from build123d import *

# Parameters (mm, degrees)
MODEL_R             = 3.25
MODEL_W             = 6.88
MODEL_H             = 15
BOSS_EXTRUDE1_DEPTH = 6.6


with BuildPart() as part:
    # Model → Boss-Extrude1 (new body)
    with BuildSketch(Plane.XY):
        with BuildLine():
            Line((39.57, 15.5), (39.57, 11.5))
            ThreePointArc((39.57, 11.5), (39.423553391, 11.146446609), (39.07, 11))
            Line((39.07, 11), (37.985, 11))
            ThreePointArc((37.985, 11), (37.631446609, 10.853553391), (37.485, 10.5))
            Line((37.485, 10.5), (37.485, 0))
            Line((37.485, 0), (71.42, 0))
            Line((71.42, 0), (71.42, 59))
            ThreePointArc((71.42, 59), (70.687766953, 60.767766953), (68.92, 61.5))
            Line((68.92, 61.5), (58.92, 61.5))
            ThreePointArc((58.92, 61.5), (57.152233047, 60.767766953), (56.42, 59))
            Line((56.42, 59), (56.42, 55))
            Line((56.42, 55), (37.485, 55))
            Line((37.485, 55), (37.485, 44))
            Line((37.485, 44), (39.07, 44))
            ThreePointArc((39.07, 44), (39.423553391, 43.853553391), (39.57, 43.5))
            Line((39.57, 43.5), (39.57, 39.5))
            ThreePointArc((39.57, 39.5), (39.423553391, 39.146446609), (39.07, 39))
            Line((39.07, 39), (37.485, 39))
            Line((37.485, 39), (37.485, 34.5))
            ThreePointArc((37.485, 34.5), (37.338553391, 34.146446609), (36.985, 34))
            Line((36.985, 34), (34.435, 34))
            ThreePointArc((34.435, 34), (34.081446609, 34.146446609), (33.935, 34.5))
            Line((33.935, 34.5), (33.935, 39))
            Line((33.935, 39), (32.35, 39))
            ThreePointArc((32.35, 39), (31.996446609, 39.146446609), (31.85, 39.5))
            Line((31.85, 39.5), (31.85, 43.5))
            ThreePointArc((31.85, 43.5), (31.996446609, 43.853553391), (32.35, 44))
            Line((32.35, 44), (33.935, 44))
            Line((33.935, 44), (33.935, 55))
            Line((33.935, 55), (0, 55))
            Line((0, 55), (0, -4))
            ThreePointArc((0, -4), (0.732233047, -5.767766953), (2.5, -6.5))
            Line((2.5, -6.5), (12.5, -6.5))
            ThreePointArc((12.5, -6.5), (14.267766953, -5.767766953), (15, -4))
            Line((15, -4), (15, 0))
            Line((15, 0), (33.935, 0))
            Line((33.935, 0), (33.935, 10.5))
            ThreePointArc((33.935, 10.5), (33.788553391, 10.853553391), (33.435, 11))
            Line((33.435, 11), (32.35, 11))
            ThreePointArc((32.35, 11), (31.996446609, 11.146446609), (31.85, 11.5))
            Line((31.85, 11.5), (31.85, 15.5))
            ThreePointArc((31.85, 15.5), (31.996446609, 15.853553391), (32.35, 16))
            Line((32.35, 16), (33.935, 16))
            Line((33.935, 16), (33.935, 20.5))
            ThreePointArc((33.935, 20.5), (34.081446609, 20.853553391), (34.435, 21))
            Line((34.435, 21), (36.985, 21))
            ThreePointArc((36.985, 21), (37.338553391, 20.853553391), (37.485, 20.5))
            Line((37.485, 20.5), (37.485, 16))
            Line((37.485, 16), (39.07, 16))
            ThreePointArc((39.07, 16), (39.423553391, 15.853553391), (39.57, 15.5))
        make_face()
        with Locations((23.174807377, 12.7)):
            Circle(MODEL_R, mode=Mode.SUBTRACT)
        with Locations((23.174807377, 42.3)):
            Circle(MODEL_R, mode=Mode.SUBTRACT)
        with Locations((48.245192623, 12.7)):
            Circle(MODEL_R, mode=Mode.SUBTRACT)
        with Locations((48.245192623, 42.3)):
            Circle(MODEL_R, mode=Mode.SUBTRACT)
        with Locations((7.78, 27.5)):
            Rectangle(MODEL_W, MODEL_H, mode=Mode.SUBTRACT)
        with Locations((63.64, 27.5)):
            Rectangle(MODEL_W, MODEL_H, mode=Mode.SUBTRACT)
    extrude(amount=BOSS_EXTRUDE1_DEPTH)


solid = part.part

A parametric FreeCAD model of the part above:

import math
import FreeCAD as App
import Part
import Sketcher
Q = App.Units.Quantity


def add_polygon(sketch, points):
    """Adds a closed chain of lines whose ends are joined by coincident constraints."""
    first, n = sketch.GeometryCount, len(points)
    for a, b in zip(points, points[1:] + points[:1]):
        sketch.addGeometry(Part.LineSegment(App.Vector(*a, 0), App.Vector(*b, 0)), False)
    for i in range(n):
        sketch.addConstraint(Sketcher.Constraint("Coincident", first + i, 2, first + (i + 1) % n, 1))

doc = App.newDocument("Part")
body = doc.addObject("PartDesign::Body", "Body")

# Sketch on XY plane
sketch1 = body.newObject("Sketcher::SketchObject", "Sketch")
sketch1.AttachmentSupport = (doc.getObject("XY_Plane"), [""])
sketch1.MapMode = "FlatFace"
sketch1.addGeometry(Part.LineSegment(App.Vector(39.57, 15.5, 0), App.Vector(39.57, 11.5, 0)), False)  # 0
sketch1.addGeometry(Part.ArcOfCircle(Part.Circle(App.Vector(39.07, 11.5, 0), App.Vector(0, 0, 1), 0.5), math.radians(-90), math.radians(0)), False)  # 1
sketch1.addGeometry(Part.LineSegment(App.Vector(39.07, 11, 0), App.Vector(37.985, 11, 0)), False)  # 2
sketch1.addGeometry(Part.ArcOfCircle(Part.Circle(App.Vector(37.985, 10.5, 0), App.Vector(0, 0, 1), 0.5), math.radians(90), math.radians(180)), False)  # 3
sketch1.addGeometry(Part.LineSegment(App.Vector(37.485, 10.5, 0), App.Vector(37.485, 0, 0)), False)  # 4
sketch1.addGeometry(Part.LineSegment(App.Vector(37.485, 0, 0), App.Vector(71.42, 0, 0)), False)  # 5
sketch1.addGeometry(Part.LineSegment(App.Vector(71.42, 0, 0), App.Vector(71.42, 59, 0)), False)  # 6
sketch1.addGeometry(Part.ArcOfCircle(Part.Circle(App.Vector(68.92, 59, 0), App.Vector(0, 0, 1), 2.5), math.radians(0), math.radians(90)), False)  # 7
sketch1.addGeometry(Part.LineSegment(App.Vector(68.92, 61.5, 0), App.Vector(58.92, 61.5, 0)), False)  # 8
sketch1.addGeometry(Part.ArcOfCircle(Part.Circle(App.Vector(58.92, 59, 0), App.Vector(0, 0, 1), 2.5), math.radians(90), math.radians(180)), False)  # 9
sketch1.addGeometry(Part.LineSegment(App.Vector(56.42, 59, 0), App.Vector(56.42, 55, 0)), False)  # 10
sketch1.addGeometry(Part.LineSegment(App.Vector(56.42, 55, 0), App.Vector(37.485, 55, 0)), False)  # 11
sketch1.addGeometry(Part.LineSegment(App.Vector(37.485, 55, 0), App.Vector(37.485, 44, 0)), False)  # 12
sketch1.addGeometry(Part.LineSegment(App.Vector(37.485, 44, 0), App.Vector(39.07, 44, 0)), False)  # 13
sketch1.addGeometry(Part.ArcOfCircle(Part.Circle(App.Vector(39.07, 43.5, 0), App.Vector(0, 0, 1), 0.5), math.radians(0), math.radians(90)), False)  # 14
sketch1.addGeometry(Part.LineSegment(App.Vector(39.57, 43.5, 0), App.Vector(39.57, 39.5, 0)), False)  # 15
sketch1.addGeometry(Part.ArcOfCircle(Part.Circle(App.Vector(39.07, 39.5, 0), App.Vector(0, 0, 1), 0.5), math.radians(-90), math.radians(0)), False)  # 16
sketch1.addGeometry(Part.LineSegment(App.Vector(39.07, 39, 0), App.Vector(37.485, 39, 0)), False)  # 17
sketch1.addGeometry(Part.LineSegment(App.Vector(37.485, 39, 0), App.Vector(37.485, 34.5, 0)), False)  # 18
sketch1.addGeometry(Part.ArcOfCircle(Part.Circle(App.Vector(36.985, 34.5, 0), App.Vector(0, 0, 1), 0.5), math.radians(-90), math.radians(0)), False)  # 19
sketch1.addGeometry(Part.LineSegment(App.Vector(36.985, 34, 0), App.Vector(34.435, 34, 0)), False)  # 20
sketch1.addGeometry(Part.ArcOfCircle(Part.Circle(App.Vector(34.435, 34.5, 0), App.Vector(0, 0, 1), 0.5), math.radians(180), math.radians(270)), False)  # 21
sketch1.addGeometry(Part.LineSegment(App.Vector(33.935, 34.5, 0), App.Vector(33.935, 39, 0)), False)  # 22
sketch1.addGeometry(Part.LineSegment(App.Vector(33.935, 39, 0), App.Vector(32.35, 39, 0)), False)  # 23
sketch1.addGeometry(Part.ArcOfCircle(Part.Circle(App.Vector(32.35, 39.5, 0), App.Vector(0, 0, 1), 0.5), math.radians(180), math.radians(270)), False)  # 24
sketch1.addGeometry(Part.LineSegment(App.Vector(31.85, 39.5, 0), App.Vector(31.85, 43.5, 0)), False)  # 25
sketch1.addGeometry(Part.ArcOfCircle(Part.Circle(App.Vector(32.35, 43.5, 0), App.Vector(0, 0, 1), 0.5), math.radians(90), math.radians(180)), False)  # 26
sketch1.addGeometry(Part.LineSegment(App.Vector(32.35, 44, 0), App.Vector(33.935, 44, 0)), False)  # 27
sketch1.addGeometry(Part.LineSegment(App.Vector(33.935, 44, 0), App.Vector(33.935, 55, 0)), False)  # 28
sketch1.addGeometry(Part.LineSegment(App.Vector(33.935, 55, 0), App.Vector(0, 55, 0)), False)  # 29
sketch1.addGeometry(Part.LineSegment(App.Vector(0, 55, 0), App.Vector(0, -4, 0)), False)  # 30
sketch1.addGeometry(Part.ArcOfCircle(Part.Circle(App.Vector(2.5, -4, 0), App.Vector(0, 0, 1), 2.5), math.radians(180), math.radians(270)), False)  # 31
sketch1.addGeometry(Part.LineSegment(App.Vector(2.5, -6.5, 0), App.Vector(12.5, -6.5, 0)), False)  # 32
sketch1.addGeometry(Part.ArcOfCircle(Part.Circle(App.Vector(12.5, -4, 0), App.Vector(0, 0, 1), 2.5), math.radians(-90), math.radians(0)), False)  # 33
sketch1.addGeometry(Part.LineSegment(App.Vector(15, -4, 0), App.Vector(15, 0, 0)), False)  # 34
sketch1.addGeometry(Part.LineSegment(App.Vector(15, 0, 0), App.Vector(33.935, 0, 0)), False)  # 35
sketch1.addGeometry(Part.LineSegment(App.Vector(33.935, 0, 0), App.Vector(33.935, 10.5, 0)), False)  # 36
sketch1.addGeometry(Part.ArcOfCircle(Part.Circle(App.Vector(33.435, 10.5, 0), App.Vector(0, 0, 1), 0.5), math.radians(0), math.radians(90)), False)  # 37
sketch1.addGeometry(Part.LineSegment(App.Vector(33.435, 11, 0), App.Vector(32.35, 11, 0)), False)  # 38
sketch1.addGeometry(Part.ArcOfCircle(Part.Circle(App.Vector(32.35, 11.5, 0), App.Vector(0, 0, 1), 0.5), math.radians(180), math.radians(270)), False)  # 39
sketch1.addGeometry(Part.LineSegment(App.Vector(31.85, 11.5, 0), App.Vector(31.85, 15.5, 0)), False)  # 40
sketch1.addGeometry(Part.ArcOfCircle(Part.Circle(App.Vector(32.35, 15.5, 0), App.Vector(0, 0, 1), 0.5), math.radians(90), math.radians(180)), False)  # 41
sketch1.addGeometry(Part.LineSegment(App.Vector(32.35, 16, 0), App.Vector(33.935, 16, 0)), False)  # 42
sketch1.addGeometry(Part.LineSegment(App.Vector(33.935, 16, 0), App.Vector(33.935, 20.5, 0)), False)  # 43
sketch1.addGeometry(Part.ArcOfCircle(Part.Circle(App.Vector(34.435, 20.5, 0), App.Vector(0, 0, 1), 0.5), math.radians(90), math.radians(180)), False)  # 44
sketch1.addGeometry(Part.LineSegment(App.Vector(34.435, 21, 0), App.Vector(36.985, 21, 0)), False)  # 45
sketch1.addGeometry(Part.ArcOfCircle(Part.Circle(App.Vector(36.985, 20.5, 0), App.Vector(0, 0, 1), 0.5), math.radians(0), math.radians(90)), False)  # 46
sketch1.addGeometry(Part.LineSegment(App.Vector(37.485, 20.5, 0), App.Vector(37.485, 16, 0)), False)  # 47
sketch1.addGeometry(Part.LineSegment(App.Vector(37.485, 16, 0), App.Vector(39.07, 16, 0)), False)  # 48
sketch1.addGeometry(Part.ArcOfCircle(Part.Circle(App.Vector(39.07, 15.5, 0), App.Vector(0, 0, 1), 0.5), math.radians(0), math.radians(90)), False)  # 49
sketch1.addGeometry(Part.Circle(App.Vector(23.174807, 12.7, 0), App.Vector(0, 0, 1), 3.25), False)  # 50
sketch1.addGeometry(Part.Circle(App.Vector(48.245193, 12.7, 0), App.Vector(0, 0, 1), 3.25), False)  # 51
add_polygon(sketch1, [(11.22, 20), (4.34, 20), (4.34, 35), (11.22, 35)])  # lines 52-55
sketch1.addGeometry(Part.Circle(App.Vector(23.174807, 42.3, 0), App.Vector(0, 0, 1), 3.25), False)  # 56
add_polygon(sketch1, [(67.08, 20), (60.2, 20), (60.2, 35), (67.08, 35)])  # lines 57-60
sketch1.addGeometry(Part.Circle(App.Vector(48.245193, 42.3, 0), App.Vector(0, 0, 1), 3.25), False)  # 61
sketch1.addConstraint(Sketcher.Constraint("Tangent", 0, 2, 1, 2))
sketch1.addConstraint(Sketcher.Constraint("Tangent", 1, 1, 2, 1))
sketch1.addConstraint(Sketcher.Constraint("Tangent", 2, 2, 3, 1))
sketch1.addConstraint(Sketcher.Constraint("Tangent", 3, 2, 4, 1))
sketch1.addConstraint(Sketcher.Constraint("Coincident", 4, 2, 5, 1))
sketch1.addConstraint(Sketcher.Constraint("Coincident", 5, 2, 6, 1))
sketch1.addConstraint(Sketcher.Constraint("Tangent", 6, 2, 7, 1))
sketch1.addConstraint(Sketcher.Constraint("Tangent", 7, 2, 8, 1))
sketch1.addConstraint(Sketcher.Constraint("Tangent", 8, 2, 9, 1))
sketch1.addConstraint(Sketcher.Constraint("Tangent", 9, 2, 10, 1))
sketch1.addConstraint(Sketcher.Constraint("Coincident", 10, 2, 11, 1))
sketch1.addConstraint(Sketcher.Constraint("Coincident", 11, 2, 12, 1))
sketch1.addConstraint(Sketcher.Constraint("Coincident", 12, 2, 13, 1))
sketch1.addConstraint(Sketcher.Constraint("Tangent", 13, 2, 14, 2))
sketch1.addConstraint(Sketcher.Constraint("Tangent", 14, 1, 15, 1))
sketch1.addConstraint(Sketcher.Constraint("Tangent", 15, 2, 16, 2))
sketch1.addConstraint(Sketcher.Constraint("Tangent", 16, 1, 17, 1))
sketch1.addConstraint(Sketcher.Constraint("Coincident", 17, 2, 18, 1))
sketch1.addConstraint(Sketcher.Constraint("Tangent", 18, 2, 19, 2))
sketch1.addConstraint(Sketcher.Constraint("Tangent", 19, 1, 20, 1))
sketch1.addConstraint(Sketcher.Constraint("Tangent", 20, 2, 21, 2))
sketch1.addConstraint(Sketcher.Constraint("Tangent", 21, 1, 22, 1))
sketch1.addConstraint(Sketcher.Constraint("Coincident", 22, 2, 23, 1))
sketch1.addConstraint(Sketcher.Constraint("Tangent", 23, 2, 24, 2))
sketch1.addConstraint(Sketcher.Constraint("Tangent", 24, 1, 25, 1))
sketch1.addConstraint(Sketcher.Constraint("Tangent", 25, 2, 26, 2))
sketch1.addConstraint(Sketcher.Constraint("Tangent", 26, 1, 27, 1))
sketch1.addConstraint(Sketcher.Constraint("Coincident", 27, 2, 28, 1))
sketch1.addConstraint(Sketcher.Constraint("Coincident", 28, 2, 29, 1))
sketch1.addConstraint(Sketcher.Constraint("Coincident", 29, 2, 30, 1))
sketch1.addConstraint(Sketcher.Constraint("Tangent", 30, 2, 31, 1))
sketch1.addConstraint(Sketcher.Constraint("Tangent", 31, 2, 32, 1))
sketch1.addConstraint(Sketcher.Constraint("Tangent", 32, 2, 33, 1))
sketch1.addConstraint(Sketcher.Constraint("Tangent", 33, 2, 34, 1))
sketch1.addConstraint(Sketcher.Constraint("Coincident", 34, 2, 35, 1))
sketch1.addConstraint(Sketcher.Constraint("Coincident", 35, 2, 36, 1))
sketch1.addConstraint(Sketcher.Constraint("Tangent", 36, 2, 37, 1))
sketch1.addConstraint(Sketcher.Constraint("Tangent", 37, 2, 38, 1))
sketch1.addConstraint(Sketcher.Constraint("Tangent", 38, 2, 39, 2))
sketch1.addConstraint(Sketcher.Constraint("Tangent", 39, 1, 40, 1))
sketch1.addConstraint(Sketcher.Constraint("Tangent", 40, 2, 41, 2))
sketch1.addConstraint(Sketcher.Constraint("Tangent", 41, 1, 42, 1))
sketch1.addConstraint(Sketcher.Constraint("Coincident", 42, 2, 43, 1))
sketch1.addConstraint(Sketcher.Constraint("Tangent", 43, 2, 44, 2))
sketch1.addConstraint(Sketcher.Constraint("Tangent", 44, 1, 45, 1))
sketch1.addConstraint(Sketcher.Constraint("Tangent", 45, 2, 46, 2))
sketch1.addConstraint(Sketcher.Constraint("Tangent", 46, 1, 47, 1))
sketch1.addConstraint(Sketcher.Constraint("Coincident", 47, 2, 48, 1))
sketch1.addConstraint(Sketcher.Constraint("Tangent", 48, 2, 49, 2))
sketch1.addConstraint(Sketcher.Constraint("Tangent", 49, 1, 0, 1))
sketch1.addConstraint(Sketcher.Constraint("Vertical", 0))
sketch1.addConstraint(Sketcher.Constraint("Horizontal", 2))
sketch1.addConstraint(Sketcher.Constraint("Vertical", 4))
sketch1.addConstraint(Sketcher.Constraint("Horizontal", 5))
sketch1.addConstraint(Sketcher.Constraint("Vertical", 6))
sketch1.addConstraint(Sketcher.Constraint("Horizontal", 8))
sketch1.addConstraint(Sketcher.Constraint("Vertical", 10))
sketch1.addConstraint(Sketcher.Constraint("Horizontal", 11))
sketch1.addConstraint(Sketcher.Constraint("Vertical", 12))
sketch1.addConstraint(Sketcher.Constraint("Horizontal", 13))
sketch1.addConstraint(Sketcher.Constraint("Vertical", 15))
sketch1.addConstraint(Sketcher.Constraint("Horizontal", 17))
sketch1.addConstraint(Sketcher.Constraint("Vertical", 18))
sketch1.addConstraint(Sketcher.Constraint("Horizontal", 20))
sketch1.addConstraint(Sketcher.Constraint("Vertical", 22))
sketch1.addConstraint(Sketcher.Constraint("Horizontal", 23))
sketch1.addConstraint(Sketcher.Constraint("Vertical", 25))
sketch1.addConstraint(Sketcher.Constraint("Horizontal", 27))
sketch1.addConstraint(Sketcher.Constraint("Vertical", 28))
sketch1.addConstraint(Sketcher.Constraint("Horizontal", 29))
sketch1.addConstraint(Sketcher.Constraint("Vertical", 30))
sketch1.addConstraint(Sketcher.Constraint("Horizontal", 32))
sketch1.addConstraint(Sketcher.Constraint("Vertical", 34))
sketch1.addConstraint(Sketcher.Constraint("Horizontal", 35))
sketch1.addConstraint(Sketcher.Constraint("Vertical", 36))
sketch1.addConstraint(Sketcher.Constraint("Horizontal", 38))
sketch1.addConstraint(Sketcher.Constraint("Vertical", 40))
sketch1.addConstraint(Sketcher.Constraint("Horizontal", 42))
sketch1.addConstraint(Sketcher.Constraint("Vertical", 43))
sketch1.addConstraint(Sketcher.Constraint("Horizontal", 45))
sketch1.addConstraint(Sketcher.Constraint("Vertical", 47))
sketch1.addConstraint(Sketcher.Constraint("Horizontal", 48))
sketch1.addConstraint(Sketcher.Constraint("Horizontal", 52))
sketch1.addConstraint(Sketcher.Constraint("Vertical", 53))
sketch1.addConstraint(Sketcher.Constraint("Horizontal", 54))
sketch1.addConstraint(Sketcher.Constraint("Vertical", 55))
sketch1.addConstraint(Sketcher.Constraint("Horizontal", 57))
sketch1.addConstraint(Sketcher.Constraint("Vertical", 58))
sketch1.addConstraint(Sketcher.Constraint("Horizontal", 59))
sketch1.addConstraint(Sketcher.Constraint("Vertical", 60))
sketch1.addConstraint(Sketcher.Constraint("Equal", 1, 3))
sketch1.addConstraint(Sketcher.Constraint("Equal", 7, 9))
sketch1.addConstraint(Sketcher.Constraint("Equal", 3, 14))
sketch1.addConstraint(Sketcher.Constraint("Equal", 14, 16))
sketch1.addConstraint(Sketcher.Constraint("Equal", 16, 19))
sketch1.addConstraint(Sketcher.Constraint("Equal", 19, 21))
sketch1.addConstraint(Sketcher.Constraint("Equal", 21, 24))
sketch1.addConstraint(Sketcher.Constraint("Equal", 24, 26))
sketch1.addConstraint(Sketcher.Constraint("Equal", 9, 31))
sketch1.addConstraint(Sketcher.Constraint("Equal", 31, 33))
sketch1.addConstraint(Sketcher.Constraint("Equal", 26, 37))
sketch1.addConstraint(Sketcher.Constraint("Equal", 37, 39))
sketch1.addConstraint(Sketcher.Constraint("Equal", 39, 41))
sketch1.addConstraint(Sketcher.Constraint("Equal", 41, 44))
sketch1.addConstraint(Sketcher.Constraint("Equal", 44, 46))
sketch1.addConstraint(Sketcher.Constraint("Equal", 46, 49))
sketch1.addConstraint(Sketcher.Constraint("Equal", 50, 51))
sketch1.addConstraint(Sketcher.Constraint("Equal", 51, 56))
sketch1.addConstraint(Sketcher.Constraint("Equal", 56, 61))
sketch1.addConstraint(Sketcher.Constraint("PointOnObject", 4, 2, -1))
sketch1.addConstraint(Sketcher.Constraint("PointOnObject", 29, 2, -2))
sketch1.addConstraint(Sketcher.Constraint("PointOnObject", 34, 2, -1))
sketch1.addConstraint(Sketcher.Constraint("Horizontal", 16, 3, 24, 3))
sketch1.addConstraint(Sketcher.Constraint("Horizontal", 14, 3, 26, 3))
sketch1.addConstraint(Sketcher.Constraint("Horizontal", 3, 3, 37, 3))
sketch1.addConstraint(Sketcher.Constraint("Horizontal", 41, 3, 49, 3))
sketch1.addConstraint(Sketcher.Constraint("Horizontal", 50, 3, 51, 3))
sketch1.addConstraint(Sketcher.Constraint("Horizontal", 56, 3, 61, 3))
sketch1.addConstraint(Sketcher.Constraint("Horizontal", 11, 2, 28, 2))
sketch1.addConstraint(Sketcher.Constraint("Horizontal", 55, 2, 57, 2))
sketch1.addConstraint(Sketcher.Constraint("Horizontal", 54, 2, 58, 2))
sketch1.addConstraint(Sketcher.Constraint("Vertical", 1, 3, 14, 3))
sketch1.addConstraint(Sketcher.Constraint("Vertical", 26, 3, 39, 3))
sketch1.addConstraint(Sketcher.Constraint("Vertical", 21, 3, 44, 3))
sketch1.addConstraint(Sketcher.Constraint("Vertical", 19, 3, 46, 3))
sketch1.addConstraint(Sketcher.Constraint("Vertical", 50, 3, 56, 3))
sketch1.addConstraint(Sketcher.Constraint("Vertical", 51, 3, 61, 3))
sketch1.addConstraint(Sketcher.Constraint("Vertical", 4, 2, 11, 2))
sketch1.addConstraint(Sketcher.Constraint("Vertical", 12, 2, 17, 2))
sketch1.addConstraint(Sketcher.Constraint("Vertical", 22, 2, 27, 2))
sketch1.addConstraint(Sketcher.Constraint("Vertical", 28, 2, 35, 2))
sketch1.addConstraint(Sketcher.Constraint("Equal", 17, 23))
sketch1.addConstraint(Sketcher.Constraint("Equal", 5, 29))
sketch1.addConstraint(Sketcher.Constraint("Equal", 8, 32))
sketch1.addConstraint(Sketcher.Constraint("Equal", 54, 57))
sketch1.addConstraint(Sketcher.Constraint("Equal", 0, 10))
sketch1.addConstraint(Sketcher.Constraint("Equal", 10, 15))
sketch1.addConstraint(Sketcher.Constraint("Equal", 6, 30))
sketch1.addConstraint(Sketcher.Constraint("Equal", 22, 43))
sketch1.addConstraint(Sketcher.Constraint("Diameter", 50, Q("6.5 mm")))
sketch1.addConstraint(Sketcher.Constraint("Radius", 1, Q("0.5 mm")))
sketch1.addConstraint(Sketcher.Constraint("Radius", 7, Q("2.5 mm")))
sketch1.addConstraint(Sketcher.Constraint("DistanceX", 8, 2, 8, 1, Q("10 mm")))
sketch1.addConstraint(Sketcher.Constraint("DistanceY", 0, 2, 0, 1, Q("4 mm")))
sketch1.addConstraint(Sketcher.Constraint("DistanceY", 6, 1, 6, 2, Q("59 mm")))
sketch1.addConstraint(Sketcher.Constraint("DistanceY", 12, 2, 12, 1, Q("11 mm")))
sketch1.addConstraint(Sketcher.Constraint("DistanceY", 53, 1, 53, 2, Q("15 mm")))
sketch1.addConstraint(Sketcher.Constraint("DistanceY", 4, 2, 4, 1, Q("10.5 mm")))
sketch1.addConstraint(Sketcher.Constraint("DistanceY", 18, 2, 18, 1, Q("4.5 mm")))
sketch1.addConstraint(Sketcher.Constraint("DistanceY", -1, 1, 52, 2, Q("20 mm")))
sketch1.addConstraint(Sketcher.Constraint("DistanceX", 20, 2, 20, 1, Q("2.55 mm")))
sketch1.addConstraint(Sketcher.Constraint("DistanceX", 52, 2, 52, 1, Q("6.88 mm")))
sketch1.addConstraint(Sketcher.Constraint("DistanceY", -1, 1, 50, 3, Q("12.7 mm")))
sketch1.addConstraint(Sketcher.Constraint("DistanceY", -1, 1, 56, 3, Q("42.3 mm")))
sketch1.addConstraint(Sketcher.Constraint("DistanceX", -1, 1, 57, 2, Q("60.2 mm")))
sketch1.addConstraint(Sketcher.Constraint("DistanceX", 2, 2, 2, 1, Q("1.085 mm")))
sketch1.addConstraint(Sketcher.Constraint("DistanceX", 5, 1, 5, 2, Q("33.935 mm")))
sketch1.addConstraint(Sketcher.Constraint("DistanceX", -1, 1, 52, 2, Q("4.34 mm")))
sketch1.addConstraint(Sketcher.Constraint("DistanceX", -1, 1, 50, 3, Q("23.174807 mm")))
sketch1.addConstraint(Sketcher.Constraint("DistanceX", -1, 1, 51, 3, Q("48.245193 mm")))
pad1 = body.newObject("PartDesign::Pad", "Pad")
pad1.Profile = sketch1
pad1.Length = 6.6

doc.recompute()
